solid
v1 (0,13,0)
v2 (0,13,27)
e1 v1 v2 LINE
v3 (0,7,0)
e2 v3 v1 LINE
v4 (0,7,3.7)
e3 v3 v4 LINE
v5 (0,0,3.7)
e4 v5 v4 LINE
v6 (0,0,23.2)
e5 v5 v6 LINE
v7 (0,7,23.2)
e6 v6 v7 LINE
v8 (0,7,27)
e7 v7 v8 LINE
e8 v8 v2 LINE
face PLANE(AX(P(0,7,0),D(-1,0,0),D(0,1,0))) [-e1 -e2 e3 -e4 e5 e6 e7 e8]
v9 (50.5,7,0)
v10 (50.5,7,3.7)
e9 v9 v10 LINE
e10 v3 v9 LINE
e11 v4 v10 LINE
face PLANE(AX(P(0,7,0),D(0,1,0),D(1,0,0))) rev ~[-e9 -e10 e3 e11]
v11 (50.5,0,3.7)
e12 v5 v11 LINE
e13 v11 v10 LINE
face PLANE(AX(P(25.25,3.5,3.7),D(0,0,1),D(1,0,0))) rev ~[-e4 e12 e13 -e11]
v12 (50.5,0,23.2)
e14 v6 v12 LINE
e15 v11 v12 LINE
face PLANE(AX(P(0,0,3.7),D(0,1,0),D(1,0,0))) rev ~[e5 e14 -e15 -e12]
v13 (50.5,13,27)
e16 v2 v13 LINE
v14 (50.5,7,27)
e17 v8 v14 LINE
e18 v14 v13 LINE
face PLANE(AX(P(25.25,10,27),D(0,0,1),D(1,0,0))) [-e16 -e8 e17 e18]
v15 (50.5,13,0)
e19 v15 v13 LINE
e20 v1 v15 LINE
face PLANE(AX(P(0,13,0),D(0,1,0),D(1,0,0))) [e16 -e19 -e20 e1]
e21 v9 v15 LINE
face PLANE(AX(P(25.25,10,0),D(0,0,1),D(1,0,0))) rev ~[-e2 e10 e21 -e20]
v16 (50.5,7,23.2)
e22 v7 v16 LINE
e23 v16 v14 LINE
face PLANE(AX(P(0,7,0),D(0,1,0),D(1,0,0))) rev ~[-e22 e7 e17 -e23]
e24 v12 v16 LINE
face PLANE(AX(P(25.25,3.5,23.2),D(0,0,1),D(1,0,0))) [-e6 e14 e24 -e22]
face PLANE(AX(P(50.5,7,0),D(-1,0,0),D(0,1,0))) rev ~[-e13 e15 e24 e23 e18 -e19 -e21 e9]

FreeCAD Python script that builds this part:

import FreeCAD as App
import Part
import Sketcher

V = App.Vector

doc = App.newDocument("Part")
params = doc.addObject("Spreadsheet::Sheet", "Params")
for row, (alias, value) in enumerate([
    ("sketch1_height", "7 mm"),
    ("sketch1_width", "50.5 mm"),
    ("pad1_length", "19.5 mm"),
    ("sketch2_height", "6 mm"),
    ("sketch2_width", "50.5 mm"),
    ("pad2_length", "27 mm"),
], start=1):
    params.set(f"A{row}", alias)
    params.set(f"B{row}", "=" + value)
    params.setAlias(f"B{row}", alias)

body = doc.addObject("PartDesign::Body", "Body")

# Sketch on XY plane
sketch1 = body.newObject("Sketcher::SketchObject", "Sketch")
sketch1.AttachmentSupport = (doc.getObject("XY_Plane"), [""])
sketch1.MapMode = "FlatFace"
sketch1.AttachmentOffset = App.Placement(V(0, 0, 3.7), App.Rotation())
sketch1.addGeometry(Part.LineSegment(V(0, 7, 0), V(0, 0, 0)), False)
sketch1.addGeometry(Part.LineSegment(V(0, 0, 0), V(50, 0, 0)), False)
sketch1.addGeometry(Part.LineSegment(V(50, 0, 0), V(50, 7, 0)), False)
sketch1.addGeometry(Part.LineSegment(V(50, 7, 0), V(0, 7, 0)), False)
sketch1.addConstraint(Sketcher.Constraint("Coincident", 0, 2, 1, 1))
sketch1.addConstraint(Sketcher.Constraint("Coincident", 1, 2, 2, 1))
sketch1.addConstraint(Sketcher.Constraint("Coincident", 2, 2, 3, 1))
sketch1.addConstraint(Sketcher.Constraint("Coincident", 3, 2, 0, 1))
sketch1.addConstraint(Sketcher.Constraint("Vertical", 0))
sketch1.addConstraint(Sketcher.Constraint("Horizontal", 1))
sketch1.addConstraint(Sketcher.Constraint("Vertical", 2))
sketch1.addConstraint(Sketcher.Constraint("Horizontal", 3))
sketch1.addConstraint(Sketcher.Constraint("Coincident", 0, 2, -1, 1))
sketch1.addConstraint(Sketcher.Constraint("DistanceY", 0, 2, 0, 1, 7.0))
sketch1.addConstraint(Sketcher.Constraint("DistanceX", 1, 1, 1, 2, 50.5))
sketch1.setExpression("Constraints[9]", "Params.sketch1_height")
sketch1.setExpression("Constraints[10]", "Params.sketch1_width")
pad1 = body.newObject("PartDesign::Pad", "Pad")
pad1.Profile = sketch1
pad1.setExpression("Length", "Params.pad1_length")
body2 = doc.addObject("PartDesign::Body", "Body001")

# Sketch on XY plane
sketch2 = body2.newObject("Sketcher::SketchObject", "Sketch001")
sketch2.AttachmentSupport = (doc.getObject("XY_Plane001"), [""])
sketch2.MapMode = "FlatFace"
sketch2.addGeometry(Part.LineSegment(V(0, 13, 0), V(0, 7, 0)), False)
sketch2.addGeometry(Part.LineSegment(V(0, 7, 0), V(50, 7, 0)), False)
sketch2.addGeometry(Part.LineSegment(V(50, 7, 0), V(50, 13, 0)), False)
sketch2.addGeometry(Part.LineSegment(V(50, 13, 0), V(0, 13, 0)), False)
sketch2.addConstraint(Sketcher.Constraint("Coincident", 0, 2, 1, 1))
sketch2.addConstraint(Sketcher.Constraint("Coincident", 1, 2, 2, 1))
sketch2.addConstraint(Sketcher.Constraint("Coincident", 2, 2, 3, 1))
sketch2.addConstraint(Sketcher.Constraint("Coincident", 3, 2, 0, 1))
sketch2.addConstraint(Sketcher.Constraint("Vertical", 0))
sketch2.addConstraint(Sketcher.Constraint("Horizontal", 1))
sketch2.addConstraint(Sketcher.Constraint("Vertical", 2))
sketch2.addConstraint(Sketcher.Constraint("Horizontal", 3))
sketch2.addConstraint(Sketcher.Constraint("PointOnObject", 0, 2, -2))
sketch2.addConstraint(Sketcher.Constraint("DistanceY", 0, 2, 0, 1, 6.0))
sketch2.addConstraint(Sketcher.Constraint("DistanceX", 1, 1, 1, 2, 50.5))
sketch2.addConstraint(Sketcher.Constraint("DistanceY", -1, 1, 0, 2, 7.0))
sketch2.setExpression("Constraints[9]", "Params.sketch2_height")
sketch2.setExpression("Constraints[10]", "Params.sketch2_width")
pad2 = body2.newObject("PartDesign::Pad", "Pad001")
pad2.Profile = sketch2
pad2.setExpression("Length", "Params.pad2_length")
doc.recompute()

boolean = body2.newObject("PartDesign::Boolean", "Boolean")
boolean.Type = "Fuse"
boolean.addObjects([body])

doc.recompute()
